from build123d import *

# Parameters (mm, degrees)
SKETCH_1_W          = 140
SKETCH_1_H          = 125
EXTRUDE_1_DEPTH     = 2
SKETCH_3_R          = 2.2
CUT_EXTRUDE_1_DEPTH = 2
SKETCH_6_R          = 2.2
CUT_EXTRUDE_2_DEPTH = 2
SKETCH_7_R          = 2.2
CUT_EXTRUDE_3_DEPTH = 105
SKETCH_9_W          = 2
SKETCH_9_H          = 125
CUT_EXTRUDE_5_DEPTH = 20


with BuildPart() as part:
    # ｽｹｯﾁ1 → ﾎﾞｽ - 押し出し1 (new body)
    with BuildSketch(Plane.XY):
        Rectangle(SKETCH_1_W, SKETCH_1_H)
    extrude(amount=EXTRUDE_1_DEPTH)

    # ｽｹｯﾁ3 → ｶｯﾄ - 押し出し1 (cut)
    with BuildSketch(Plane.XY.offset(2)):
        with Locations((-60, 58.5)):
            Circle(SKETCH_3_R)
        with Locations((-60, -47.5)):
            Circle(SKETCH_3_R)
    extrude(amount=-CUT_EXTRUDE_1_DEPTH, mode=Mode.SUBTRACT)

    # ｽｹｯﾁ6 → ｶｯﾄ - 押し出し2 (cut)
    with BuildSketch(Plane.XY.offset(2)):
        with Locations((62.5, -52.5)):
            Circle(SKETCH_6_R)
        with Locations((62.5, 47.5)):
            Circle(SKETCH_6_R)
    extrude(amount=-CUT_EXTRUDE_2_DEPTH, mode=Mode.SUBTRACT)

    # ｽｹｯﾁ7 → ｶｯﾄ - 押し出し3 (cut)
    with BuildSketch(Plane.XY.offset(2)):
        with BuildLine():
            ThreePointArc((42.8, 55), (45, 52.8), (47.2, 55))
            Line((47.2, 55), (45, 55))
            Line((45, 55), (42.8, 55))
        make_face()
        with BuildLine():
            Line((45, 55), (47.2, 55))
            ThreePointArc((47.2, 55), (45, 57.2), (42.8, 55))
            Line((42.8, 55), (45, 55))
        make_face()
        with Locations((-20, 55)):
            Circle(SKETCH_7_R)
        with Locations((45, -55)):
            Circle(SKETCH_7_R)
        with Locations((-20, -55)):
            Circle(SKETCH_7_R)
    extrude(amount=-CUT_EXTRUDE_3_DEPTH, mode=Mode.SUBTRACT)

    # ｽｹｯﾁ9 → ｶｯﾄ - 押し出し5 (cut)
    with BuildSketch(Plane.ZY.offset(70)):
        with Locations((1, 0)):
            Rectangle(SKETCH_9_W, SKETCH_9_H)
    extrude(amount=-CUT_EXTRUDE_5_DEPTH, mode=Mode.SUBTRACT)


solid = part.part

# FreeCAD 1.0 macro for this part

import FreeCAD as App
import Part
import Sketcher
from FreeCAD import Vector

doc = App.newDocument("Part")
body = doc.addObject("PartDesign::Body", "Body")

# Sketch on XY plane
sketch1 = body.newObject("Sketcher::SketchObject", "Sketch")
sketch1.AttachmentSupport = (doc.getObject("XY_Plane"), [""])
sketch1.MapMode = "FlatFace"
sketch1.addGeometry(Part.LineSegment(Vector(-70, 62.5, 0), Vector(-70, -62.5, 0)), False)
sketch1.addGeometry(Part.LineSegment(Vector(-70, -62.5, 0), Vector(70, -62.5, 0)), False)
sketch1.addGeometry(Part.LineSegment(Vector(70, -62.5, 0), Vector(70, 62.5, 0)), False)
sketch1.addGeometry(Part.LineSegment(Vector(70, 62.5, 0), Vector(-70, 62.5, 0)), False)
sketch1.addConstraint(Sketcher.Constraint("Coincident", 0, 2, 1, 1))
sketch1.addConstraint(Sketcher.Constraint("Coincident", 1, 2, 2, 1))
sketch1.addConstraint(Sketcher.Constraint("Coincident", 2, 2, 3, 1))
sketch1.addConstraint(Sketcher.Constraint("Coincident", 3, 2, 0, 1))
sketch1.addConstraint(Sketcher.Constraint("Vertical", 0))
sketch1.addConstraint(Sketcher.Constraint("Horizontal", 1))
sketch1.addConstraint(Sketcher.Constraint("Vertical", 2))
sketch1.addConstraint(Sketcher.Constraint("Horizontal", 3))
sketch1.addConstraint(Sketcher.Constraint("Symmetric", 0, 2, 2, 2, -1, 1))
sketch1.addConstraint(Sketcher.Constraint("DistanceX", 1, 1, 1, 2, 140.0))
sketch1.addConstraint(Sketcher.Constraint("DistanceY", 0, 2, 0, 1, 125.0))
pad1 = body.newObject("PartDesign::Pad", "Pad")
pad1.Profile = sketch1
pad1.Length = 2

# Sketch on XY plane
sketch2 = body.newObject("Sketcher::SketchObject", "Sketch001")
sketch2.AttachmentSupport = (doc.getObject("XY_Plane"), [""])
sketch2.MapMode = "FlatFace"
sketch2.AttachmentOffset = App.Placement(Vector(0, 0, 2), App.Rotation())
sketch2.addGeometry(Part.Circle(Vector(-60, 58.5, 0), Vector(0, 0, 1), 2.2), False)
sketch2.addGeometry(Part.Circle(Vector(-60, -47.5, 0), Vector(0, 0, 1), 2.2), False)
sketch2.addConstraint(Sketcher.Constraint("Equal", 0, 1))
sketch2.addConstraint(Sketcher.Constraint("Vertical", 0, 3, 1, 3))
sketch2.addConstraint(Sketcher.Constraint("Diameter", 0, 4.4))
sketch2.addConstraint(Sketcher.Constraint("DistanceX", 0, 3, -1, 1, 60.0))
sketch2.addConstraint(Sketcher.Constraint("DistanceY", 1, 3, 0, 3, 106.0))
sketch2.addConstraint(Sketcher.Constraint("DistanceY", -1, 1, 0, 3, 58.5))
pocket1 = body.newObject("PartDesign::Pocket", "Pocket")
pocket1.Profile = sketch2
pocket1.Length = 2

# Sketch on XY plane
sketch3 = body.newObject("Sketcher::SketchObject", "Sketch002")
sketch3.AttachmentSupport = (doc.getObject("XY_Plane"), [""])
sketch3.MapMode = "FlatFace"
sketch3.AttachmentOffset = App.Placement(Vector(0, 0, 2), App.Rotation())
sketch3.addGeometry(Part.Circle(Vector(62.5, -52.5, 0), Vector(0, 0, 1), 2.2), False)
sketch3.addGeometry(Part.Circle(Vector(62.5, 47.5, 0), Vector(0, 0, 1), 2.2), False)
sketch3.addConstraint(Sketcher.Constraint("Equal", 0, 1))
sketch3.addConstraint(Sketcher.Constraint("Vertical", 0, 3, 1, 3))
sketch3.addConstraint(Sketcher.Constraint("Diameter", 0, 4.4))
sketch3.addConstraint(Sketcher.Constraint("DistanceY", 0, 3, 1, 3, 100.0))
sketch3.addConstraint(Sketcher.Constraint("DistanceX", -1, 1, 0, 3, 62.5))
sketch3.addConstraint(Sketcher.Constraint("DistanceY", 0, 3, -1, 1, 52.5))
pocket2 = body.newObject("PartDesign::Pocket", "Pocket001")
pocket2.Profile = sketch3
pocket2.Length = 2

# Sketch on XY plane
sketch4 = body.newObject("Sketcher::SketchObject", "Sketch003")
sketch4.AttachmentSupport = (doc.getObject("XY_Plane"), [""])
sketch4.MapMode = "FlatFace"
sketch4.AttachmentOffset = App.Placement(Vector(0, 0, 2), App.Rotation())
sketch4.addGeometry(Part.Circle(Vector(45, 55, 0), Vector(0, 0, 1), 2.2), False)
sketch4.addGeometry(Part.Circle(Vector(-20, 55, 0), Vector(0, 0, 1), 2.2), False)
sketch4.addGeometry(Part.Circle(Vector(45, -55, 0), Vector(0, 0, 1), 2.2), False)
sketch4.addGeometry(Part.Circle(Vector(-20, -55, 0), Vector(0, 0, 1), 2.2), False)
sketch4.addConstraint(Sketcher.Constraint("Equal", 0, 1))
sketch4.addConstraint(Sketcher.Constraint("Equal", 1, 2))
sketch4.addConstraint(Sketcher.Constraint("Equal", 2, 3))
sketch4.addConstraint(Sketcher.Constraint("Symmetric", 0, 3, 2, 3, -1))
sketch4.addConstraint(Sketcher.Constraint("Symmetric", 1, 3, 3, 3, -1))
sketch4.addConstraint(Sketcher.Constraint("Horizontal", 0, 3, 1, 3))
sketch4.addConstraint(Sketcher.Constraint("Diameter", 0, 4.4))
sketch4.addConstraint(Sketcher.Constraint("DistanceX", -1, 1, 0, 3, 45.0))
sketch4.addConstraint(Sketcher.Constraint("DistanceY", -1, 1, 0, 3, 55.0))
sketch4.addConstraint(Sketcher.Constraint("DistanceX", 1, 3, -1, 1, 20.0))
pocket3 = body.newObject("PartDesign::Pocket", "Pocket002")
pocket3.Profile = sketch4
pocket3.Length = 105

# Sketch on YZ plane
sketch5 = body.newObject("Sketcher::SketchObject", "Sketch004")
sketch5.AttachmentSupport = (doc.getObject("YZ_Plane"), [""])
sketch5.MapMode = "FlatFace"
sketch5.AttachmentOffset = App.Placement(Vector(0, 0, -70), App.Rotation())
sketch5.addGeometry(Part.LineSegment(Vector(62.5, 0, 0), Vector(-62.5, 0, 0)), False)
sketch5.addGeometry(Part.LineSegment(Vector(-62.5, 0, 0), Vector(-62.5, 2, 0)), False)
sketch5.addGeometry(Part.LineSegment(Vector(-62.5, 2, 0), Vector(62.5, 2, 0)), False)
sketch5.addGeometry(Part.LineSegment(Vector(62.5, 2, 0), Vector(62.5, 0, 0)), False)
sketch5.addConstraint(Sketcher.Constraint("Coincident", 0, 2, 1, 1))
sketch5.addConstraint(Sketcher.Constraint("Coincident", 1, 2, 2, 1))
sketch5.addConstraint(Sketcher.Constraint("Coincident", 2, 2, 3, 1))
sketch5.addConstraint(Sketcher.Constraint("Coincident", 3, 2, 0, 1))
sketch5.addConstraint(Sketcher.Constraint("Horizontal", 0))
sketch5.addConstraint(Sketcher.Constraint("Vertical", 1))
sketch5.addConstraint(Sketcher.Constraint("Horizontal", 2))
sketch5.addConstraint(Sketcher.Constraint("Vertical", 3))
sketch5.addConstraint(Sketcher.Constraint("Symmetric", 0, 2, 3, 2, -1, 1))
sketch5.addConstraint(Sketcher.Constraint("DistanceX", 0, 2, 0, 1, 125.0))
sketch5.addConstraint(Sketcher.Constraint("DistanceY", 1, 1, 1, 2, 2.0))
pocket4 = body.newObject("PartDesign::Pocket", "Pocket003")
pocket4.Profile = sketch5
pocket4.Length = 20
pocket4.Reversed = True

doc.recompute()
